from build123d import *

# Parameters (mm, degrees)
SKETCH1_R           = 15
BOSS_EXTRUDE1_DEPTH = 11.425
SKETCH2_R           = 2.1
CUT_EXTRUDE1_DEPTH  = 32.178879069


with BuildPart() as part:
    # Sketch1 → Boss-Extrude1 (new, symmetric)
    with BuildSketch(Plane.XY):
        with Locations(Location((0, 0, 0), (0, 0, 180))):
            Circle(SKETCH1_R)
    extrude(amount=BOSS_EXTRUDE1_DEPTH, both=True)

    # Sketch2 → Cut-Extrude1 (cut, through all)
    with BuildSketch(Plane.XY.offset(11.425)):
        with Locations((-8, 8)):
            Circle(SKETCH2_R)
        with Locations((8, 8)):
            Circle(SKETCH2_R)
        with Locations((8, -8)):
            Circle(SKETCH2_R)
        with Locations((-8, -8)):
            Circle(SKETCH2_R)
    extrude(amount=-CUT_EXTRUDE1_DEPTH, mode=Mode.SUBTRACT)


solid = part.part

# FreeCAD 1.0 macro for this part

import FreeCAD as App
import Part
import Sketcher

V = App.Vector

doc = App.newDocument("Part")
params = doc.addObject("Spreadsheet::Sheet", "Params")
for row, (alias, value) in enumerate([
    ("sketch1_diameter", "30 mm"),
    ("pad1_length", "22.85 mm"),
    ("sketch2_diameter", "4.2 mm"),
], start=1):
    params.set(f"A{row}", alias)
    params.set(f"B{row}", "=" + value)
    params.setAlias(f"B{row}", alias)

body = doc.addObject("PartDesign::Body", "Body")

# Sketch on XY plane
sketch1 = body.newObject("Sketcher::SketchObject", "Sketch")
sketch1.AttachmentSupport = (doc.getObject("XY_Plane"), [""])
sketch1.MapMode = "FlatFace"
sketch1.addGeometry(Part.Circle(V(0, 0, 0), V(0, 0, 1), 15), False)
sketch1.addConstraint([
    Sketcher.Constraint("Coincident", 0, 3, -1, 1),
    Sketcher.Constraint("Diameter", 0, 30.0),
])
sketch1.setExpression("Constraints[1]", "Params.sketch1_diameter")
pad1 = body.newObject("PartDesign::Pad", "Pad")
pad1.Profile = sketch1
pad1.setExpression("Length", "Params.pad1_length")
pad1.Midplane = True

# Sketch on XY plane
sketch2 = body.newObject("Sketcher::SketchObject", "Sketch001")
sketch2.AttachmentSupport = (doc.getObject("XY_Plane"), [""])
sketch2.MapMode = "FlatFace"
sketch2.AttachmentOffset = App.Placement(V(0, 0, 11.425), App.Rotation())
sketch2.addGeometry([
    Part.Circle(V(-8, 8, 0), V(0, 0, 1), 2.1),
    Part.Circle(V(8, 8, 0), V(0, 0, 1), 2.1),
    Part.Circle(V(8, -8, 0), V(0, 0, 1), 2.1),
    Part.Circle(V(-8, -8, 0), V(0, 0, 1), 2.1),
], False)
sketch2.addConstraint([
    Sketcher.Constraint("Equal", 0, 1),
    Sketcher.Constraint("Equal", 1, 2),
    Sketcher.Constraint("Equal", 2, 3),
    Sketcher.Constraint("Symmetric", 0, 3, 2, 3, -1, 1),
    Sketcher.Constraint("Symmetric", 1, 3, 3, 3, -1, 1),
    Sketcher.Constraint("Symmetric", 0, 3, 1, 3, -2),
    Sketcher.Constraint("Diameter", 0, 4.2),
    Sketcher.Constraint("DistanceX", 0, 3, -1, 1, 8.0),
    Sketcher.Constraint("DistanceY", -1, 1, 0, 3, 8.0),
])
sketch2.setExpression("Constraints[6]", "Params.sketch2_diameter")
pocket1 = body.newObject("PartDesign::Pocket", "Pocket")
pocket1.Profile = sketch2
pocket1.Type = "ThroughAll"

doc.recompute()
